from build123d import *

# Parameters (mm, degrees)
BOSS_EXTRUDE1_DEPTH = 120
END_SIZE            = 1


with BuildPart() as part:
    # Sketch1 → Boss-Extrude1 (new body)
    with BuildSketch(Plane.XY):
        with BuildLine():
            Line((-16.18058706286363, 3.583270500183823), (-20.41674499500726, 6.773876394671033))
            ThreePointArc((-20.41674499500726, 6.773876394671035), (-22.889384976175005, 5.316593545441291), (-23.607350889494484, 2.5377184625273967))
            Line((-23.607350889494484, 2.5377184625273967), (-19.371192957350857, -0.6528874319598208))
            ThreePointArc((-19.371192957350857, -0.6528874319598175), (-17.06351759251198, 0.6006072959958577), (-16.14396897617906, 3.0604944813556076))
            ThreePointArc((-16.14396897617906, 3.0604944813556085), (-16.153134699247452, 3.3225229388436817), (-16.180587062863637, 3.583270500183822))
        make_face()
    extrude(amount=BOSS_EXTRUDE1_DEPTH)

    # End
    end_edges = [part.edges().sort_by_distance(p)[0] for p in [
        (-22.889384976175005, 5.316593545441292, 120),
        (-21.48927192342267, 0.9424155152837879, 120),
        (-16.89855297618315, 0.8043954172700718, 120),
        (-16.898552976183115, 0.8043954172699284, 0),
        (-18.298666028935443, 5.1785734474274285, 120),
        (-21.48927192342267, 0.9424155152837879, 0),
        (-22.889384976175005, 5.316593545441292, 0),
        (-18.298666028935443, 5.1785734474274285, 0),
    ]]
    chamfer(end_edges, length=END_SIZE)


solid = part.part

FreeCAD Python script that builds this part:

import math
import FreeCAD as App
import Part
import Sketcher

V = App.Vector


def edges_at(feature, points):
    """Names of the edges that pass closest to the given points."""
    edges = feature.Shape.Edges
    near = lambda p: min(range(len(edges)), key=lambda i: edges[i].distToShape(Part.Vertex(*p))[0])
    return sorted({f"Edge{near(p) + 1}" for p in points})

doc = App.newDocument("Part")
body = doc.addObject("PartDesign::Body", "Body")

# Sketch on XY plane
sketch1 = doc.addObject("Sketcher::SketchObject", "Sketch")
body.addObject(sketch1)
sketch1.AttachmentSupport = (doc.XY_Plane, [""])
sketch1.MapMode = "FlatFace"
sketch1.addGeometry([
    Part.LineSegment(V(-16.180587, 3.58327, 0), V(-20.416745, 6.773876, 0)),
    Part.ArcOfCircle(Part.Circle(V(-19.893969, 3.060494, 0), V(0, 0, 1), 3.75), math.radians(98.01353), math.radians(188.01353)),
    Part.LineSegment(V(-23.607351, 2.537718, 0), V(-19.371193, -0.652887, 0)),
    Part.ArcOfCircle(Part.Circle(V(-19.893969, 3.060494, 0), V(0, 0, 1), 3.75), math.radians(-81.98647), math.radians(8.01353)),
], False)
sketch1.addConstraint([
    Sketcher.Constraint("Coincident", 0, 2, 1, 1),
    Sketcher.Constraint("Coincident", 1, 2, 2, 1),
    Sketcher.Constraint("Coincident", 2, 2, 3, 1),
    Sketcher.Constraint("Coincident", 3, 2, 0, 1),
    Sketcher.Constraint("Coincident", 3, 3, 1, 3),
    Sketcher.Constraint("Equal", 1, 3),
    Sketcher.Constraint("Parallel", 0, 2),
    Sketcher.Constraint("Equal", 0, 2),
    Sketcher.Constraint("Radius", 1, 3.75),
    Sketcher.Constraint("Distance", 0, 5.303301),
    Sketcher.Constraint("DistanceX", 1, 3, -1, 1, 19.893969),
    Sketcher.Constraint("DistanceX", 1, 2, -1, 1, 23.607351),
    Sketcher.Constraint("DistanceY", -1, 1, 1, 2, 2.537718),
])
pad1 = doc.addObject("PartDesign::Pad", "Pad")
body.addObject(pad1)
pad1.Profile = sketch1
pad1.Length = 120
doc.recompute()

chamfer = doc.addObject("PartDesign::Chamfer", "Chamfer")
body.addObject(chamfer)
chamfer.Base = (pad1, edges_at(pad1, [
    (-22.889, 5.317, 120),
    (-21.489, 0.942, 120),
    (-16.899, 0.804, 120),
    (-16.899, 0.804, 0),
    (-18.299, 5.179, 120),
    (-21.489, 0.942, 0),
    (-22.889, 5.317, 0),
    (-18.299, 5.179, 0),
]))
chamfer.Size = 1

doc.recompute()
